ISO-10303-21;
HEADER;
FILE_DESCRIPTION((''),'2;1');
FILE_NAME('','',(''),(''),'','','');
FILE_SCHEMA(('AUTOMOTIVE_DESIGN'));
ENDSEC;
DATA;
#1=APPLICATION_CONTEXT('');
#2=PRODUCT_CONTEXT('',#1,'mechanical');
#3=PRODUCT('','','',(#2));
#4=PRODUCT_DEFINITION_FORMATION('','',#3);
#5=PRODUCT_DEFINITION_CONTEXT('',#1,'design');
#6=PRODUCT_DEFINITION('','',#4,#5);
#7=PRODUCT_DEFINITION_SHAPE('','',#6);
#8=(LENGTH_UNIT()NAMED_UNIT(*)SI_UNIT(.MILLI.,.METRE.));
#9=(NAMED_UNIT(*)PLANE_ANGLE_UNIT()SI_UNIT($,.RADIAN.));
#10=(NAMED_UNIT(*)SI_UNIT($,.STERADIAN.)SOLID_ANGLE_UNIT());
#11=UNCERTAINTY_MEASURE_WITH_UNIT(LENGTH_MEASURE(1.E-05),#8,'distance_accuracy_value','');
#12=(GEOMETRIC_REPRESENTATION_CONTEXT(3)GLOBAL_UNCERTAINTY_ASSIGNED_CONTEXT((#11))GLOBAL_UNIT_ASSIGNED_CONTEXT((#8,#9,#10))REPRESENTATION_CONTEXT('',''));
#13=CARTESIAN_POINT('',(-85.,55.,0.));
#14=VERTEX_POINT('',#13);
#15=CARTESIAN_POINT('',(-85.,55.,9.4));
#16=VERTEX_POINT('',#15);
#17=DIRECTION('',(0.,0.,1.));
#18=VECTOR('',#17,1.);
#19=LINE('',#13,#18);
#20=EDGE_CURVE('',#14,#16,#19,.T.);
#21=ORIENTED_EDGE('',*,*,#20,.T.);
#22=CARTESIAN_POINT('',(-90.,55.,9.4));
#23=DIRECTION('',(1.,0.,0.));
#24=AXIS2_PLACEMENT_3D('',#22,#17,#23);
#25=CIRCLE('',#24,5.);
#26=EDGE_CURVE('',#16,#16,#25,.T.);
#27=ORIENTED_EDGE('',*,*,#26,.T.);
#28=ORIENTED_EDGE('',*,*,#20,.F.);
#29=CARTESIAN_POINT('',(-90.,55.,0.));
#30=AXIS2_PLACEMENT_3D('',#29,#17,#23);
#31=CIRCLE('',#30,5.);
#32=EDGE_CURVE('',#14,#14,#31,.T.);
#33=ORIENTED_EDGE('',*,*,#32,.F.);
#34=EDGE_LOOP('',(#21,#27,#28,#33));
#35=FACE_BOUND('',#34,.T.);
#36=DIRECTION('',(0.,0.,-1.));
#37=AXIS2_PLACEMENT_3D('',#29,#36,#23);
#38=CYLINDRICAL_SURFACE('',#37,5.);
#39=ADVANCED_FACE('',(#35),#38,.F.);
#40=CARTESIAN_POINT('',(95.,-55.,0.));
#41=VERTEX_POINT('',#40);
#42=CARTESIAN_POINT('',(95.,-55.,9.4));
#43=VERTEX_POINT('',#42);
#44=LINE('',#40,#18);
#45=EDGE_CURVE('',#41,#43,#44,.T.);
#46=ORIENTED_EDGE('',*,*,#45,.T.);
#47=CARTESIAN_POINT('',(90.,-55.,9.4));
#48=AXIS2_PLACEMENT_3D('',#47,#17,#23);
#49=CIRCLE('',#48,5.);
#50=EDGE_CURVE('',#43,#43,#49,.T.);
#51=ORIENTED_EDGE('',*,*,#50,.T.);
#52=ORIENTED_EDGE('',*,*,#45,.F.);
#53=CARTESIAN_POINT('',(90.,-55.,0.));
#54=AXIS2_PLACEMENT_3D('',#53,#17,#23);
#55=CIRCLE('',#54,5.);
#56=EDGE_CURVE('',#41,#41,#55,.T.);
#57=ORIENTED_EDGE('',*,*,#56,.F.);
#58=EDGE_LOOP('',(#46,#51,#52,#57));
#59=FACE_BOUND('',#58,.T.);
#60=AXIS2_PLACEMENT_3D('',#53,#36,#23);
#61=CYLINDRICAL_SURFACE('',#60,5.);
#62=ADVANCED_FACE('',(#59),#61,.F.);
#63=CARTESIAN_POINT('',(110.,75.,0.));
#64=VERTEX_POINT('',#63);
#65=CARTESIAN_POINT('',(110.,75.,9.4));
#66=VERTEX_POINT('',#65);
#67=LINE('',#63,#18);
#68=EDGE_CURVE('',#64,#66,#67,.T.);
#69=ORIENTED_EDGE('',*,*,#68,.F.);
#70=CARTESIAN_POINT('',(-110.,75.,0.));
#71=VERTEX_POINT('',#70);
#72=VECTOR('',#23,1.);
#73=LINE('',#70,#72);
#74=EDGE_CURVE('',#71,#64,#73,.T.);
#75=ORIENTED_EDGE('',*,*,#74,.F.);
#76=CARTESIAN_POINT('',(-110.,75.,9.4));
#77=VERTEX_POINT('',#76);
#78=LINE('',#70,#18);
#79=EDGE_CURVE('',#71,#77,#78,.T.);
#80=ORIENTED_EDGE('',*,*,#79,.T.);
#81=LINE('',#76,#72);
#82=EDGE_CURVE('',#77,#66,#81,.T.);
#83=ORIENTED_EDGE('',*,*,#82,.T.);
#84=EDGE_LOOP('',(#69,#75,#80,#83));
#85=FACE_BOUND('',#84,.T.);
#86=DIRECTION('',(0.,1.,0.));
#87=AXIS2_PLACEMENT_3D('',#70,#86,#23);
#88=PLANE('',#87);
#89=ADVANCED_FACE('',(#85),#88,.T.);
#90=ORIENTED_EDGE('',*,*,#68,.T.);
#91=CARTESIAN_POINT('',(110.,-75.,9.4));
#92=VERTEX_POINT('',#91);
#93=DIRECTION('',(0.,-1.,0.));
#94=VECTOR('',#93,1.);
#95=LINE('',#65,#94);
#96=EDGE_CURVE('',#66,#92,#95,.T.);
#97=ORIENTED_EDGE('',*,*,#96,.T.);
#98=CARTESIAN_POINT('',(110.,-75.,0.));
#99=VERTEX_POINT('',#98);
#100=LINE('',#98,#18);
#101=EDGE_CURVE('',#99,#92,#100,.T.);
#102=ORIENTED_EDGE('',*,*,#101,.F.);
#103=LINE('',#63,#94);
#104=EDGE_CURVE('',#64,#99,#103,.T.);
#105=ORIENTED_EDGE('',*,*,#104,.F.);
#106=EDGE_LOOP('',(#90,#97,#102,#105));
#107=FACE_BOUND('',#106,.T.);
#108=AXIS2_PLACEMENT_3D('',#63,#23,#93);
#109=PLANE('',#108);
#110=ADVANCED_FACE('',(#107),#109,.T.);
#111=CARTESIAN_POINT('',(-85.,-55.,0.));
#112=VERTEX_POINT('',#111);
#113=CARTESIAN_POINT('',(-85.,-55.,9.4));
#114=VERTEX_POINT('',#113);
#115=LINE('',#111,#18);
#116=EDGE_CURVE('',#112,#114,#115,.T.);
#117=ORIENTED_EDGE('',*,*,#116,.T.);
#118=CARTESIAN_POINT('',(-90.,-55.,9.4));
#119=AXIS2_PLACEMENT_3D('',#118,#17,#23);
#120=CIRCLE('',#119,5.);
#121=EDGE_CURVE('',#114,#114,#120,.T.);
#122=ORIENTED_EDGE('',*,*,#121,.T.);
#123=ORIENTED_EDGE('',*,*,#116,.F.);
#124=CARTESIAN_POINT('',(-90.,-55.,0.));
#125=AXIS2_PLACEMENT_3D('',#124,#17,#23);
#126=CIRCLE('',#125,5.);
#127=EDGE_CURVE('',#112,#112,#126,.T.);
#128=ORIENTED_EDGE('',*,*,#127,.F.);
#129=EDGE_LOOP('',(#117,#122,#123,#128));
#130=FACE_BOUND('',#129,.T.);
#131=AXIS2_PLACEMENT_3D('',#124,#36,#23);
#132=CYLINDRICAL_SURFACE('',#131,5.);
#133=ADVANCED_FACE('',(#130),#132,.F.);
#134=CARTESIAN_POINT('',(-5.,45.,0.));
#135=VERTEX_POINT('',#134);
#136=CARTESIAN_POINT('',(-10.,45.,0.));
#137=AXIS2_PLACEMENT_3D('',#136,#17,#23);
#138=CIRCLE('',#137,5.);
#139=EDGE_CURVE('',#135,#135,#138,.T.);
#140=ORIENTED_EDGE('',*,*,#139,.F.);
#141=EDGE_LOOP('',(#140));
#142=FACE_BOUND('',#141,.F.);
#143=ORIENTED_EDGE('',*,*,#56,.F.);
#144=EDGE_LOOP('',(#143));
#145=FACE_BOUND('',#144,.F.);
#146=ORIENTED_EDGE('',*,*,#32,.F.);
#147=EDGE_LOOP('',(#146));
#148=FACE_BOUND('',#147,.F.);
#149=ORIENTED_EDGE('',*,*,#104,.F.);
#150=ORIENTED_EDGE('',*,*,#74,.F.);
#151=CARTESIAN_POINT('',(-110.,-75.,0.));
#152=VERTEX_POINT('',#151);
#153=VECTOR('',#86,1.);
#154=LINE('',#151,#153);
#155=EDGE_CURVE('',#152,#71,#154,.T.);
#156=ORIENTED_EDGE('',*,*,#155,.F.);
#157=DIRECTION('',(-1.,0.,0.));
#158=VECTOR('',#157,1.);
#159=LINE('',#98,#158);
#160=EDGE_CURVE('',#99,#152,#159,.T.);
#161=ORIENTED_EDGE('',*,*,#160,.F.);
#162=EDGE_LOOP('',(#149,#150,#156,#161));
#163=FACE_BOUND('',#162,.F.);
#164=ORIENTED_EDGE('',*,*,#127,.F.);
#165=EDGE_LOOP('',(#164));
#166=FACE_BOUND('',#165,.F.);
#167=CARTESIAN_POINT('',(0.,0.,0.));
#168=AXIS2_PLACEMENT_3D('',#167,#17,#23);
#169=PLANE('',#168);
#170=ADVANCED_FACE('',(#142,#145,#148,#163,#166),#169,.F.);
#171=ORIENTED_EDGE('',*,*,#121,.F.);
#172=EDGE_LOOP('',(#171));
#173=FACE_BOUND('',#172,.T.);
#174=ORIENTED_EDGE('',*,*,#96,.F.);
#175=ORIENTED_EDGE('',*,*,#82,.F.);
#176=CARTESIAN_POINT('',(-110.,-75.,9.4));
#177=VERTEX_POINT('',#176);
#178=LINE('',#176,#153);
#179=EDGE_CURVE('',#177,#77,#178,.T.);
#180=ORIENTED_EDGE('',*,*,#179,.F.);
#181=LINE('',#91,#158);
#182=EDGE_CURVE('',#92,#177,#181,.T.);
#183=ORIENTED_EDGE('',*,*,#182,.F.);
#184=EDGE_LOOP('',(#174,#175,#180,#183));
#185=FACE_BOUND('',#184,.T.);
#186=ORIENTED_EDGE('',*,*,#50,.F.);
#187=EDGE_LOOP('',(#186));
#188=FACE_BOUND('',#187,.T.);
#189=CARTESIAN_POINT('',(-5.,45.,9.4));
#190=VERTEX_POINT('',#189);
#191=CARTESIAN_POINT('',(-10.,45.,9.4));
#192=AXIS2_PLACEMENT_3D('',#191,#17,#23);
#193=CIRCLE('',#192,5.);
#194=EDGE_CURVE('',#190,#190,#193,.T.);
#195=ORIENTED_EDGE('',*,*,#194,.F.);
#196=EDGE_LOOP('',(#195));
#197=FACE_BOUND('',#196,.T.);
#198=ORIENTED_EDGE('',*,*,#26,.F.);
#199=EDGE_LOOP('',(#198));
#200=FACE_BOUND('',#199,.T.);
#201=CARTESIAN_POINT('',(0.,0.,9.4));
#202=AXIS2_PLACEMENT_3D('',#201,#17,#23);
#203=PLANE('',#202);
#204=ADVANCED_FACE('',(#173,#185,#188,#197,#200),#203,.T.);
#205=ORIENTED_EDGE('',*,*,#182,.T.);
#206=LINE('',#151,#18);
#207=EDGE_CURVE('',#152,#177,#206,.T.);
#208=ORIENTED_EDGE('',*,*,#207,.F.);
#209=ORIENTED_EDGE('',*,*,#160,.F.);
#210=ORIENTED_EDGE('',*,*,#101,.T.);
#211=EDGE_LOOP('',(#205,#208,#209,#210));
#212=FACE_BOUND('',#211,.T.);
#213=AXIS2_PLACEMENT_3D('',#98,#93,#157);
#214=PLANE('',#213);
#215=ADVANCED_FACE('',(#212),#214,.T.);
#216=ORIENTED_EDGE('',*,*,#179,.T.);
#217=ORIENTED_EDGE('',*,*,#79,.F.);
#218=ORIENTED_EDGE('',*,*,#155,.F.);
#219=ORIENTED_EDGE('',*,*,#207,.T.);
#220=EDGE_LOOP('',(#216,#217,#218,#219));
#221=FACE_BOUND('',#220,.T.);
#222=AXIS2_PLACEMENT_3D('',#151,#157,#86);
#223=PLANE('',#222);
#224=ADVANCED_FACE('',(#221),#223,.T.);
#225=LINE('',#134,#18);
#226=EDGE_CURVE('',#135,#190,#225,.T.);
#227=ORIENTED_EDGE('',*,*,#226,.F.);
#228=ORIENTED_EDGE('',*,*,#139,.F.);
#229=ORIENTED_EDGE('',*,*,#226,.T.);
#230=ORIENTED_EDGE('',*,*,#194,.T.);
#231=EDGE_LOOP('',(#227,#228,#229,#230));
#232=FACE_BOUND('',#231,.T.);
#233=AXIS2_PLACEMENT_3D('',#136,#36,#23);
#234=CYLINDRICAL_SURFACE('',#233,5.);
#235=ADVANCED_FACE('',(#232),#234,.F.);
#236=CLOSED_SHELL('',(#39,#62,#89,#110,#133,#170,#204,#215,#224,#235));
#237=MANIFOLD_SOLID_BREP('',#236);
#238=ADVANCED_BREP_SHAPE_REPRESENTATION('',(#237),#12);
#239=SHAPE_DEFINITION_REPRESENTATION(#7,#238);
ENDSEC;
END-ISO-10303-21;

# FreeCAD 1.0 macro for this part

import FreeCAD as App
import Part
import Sketcher
Q = App.Units.Quantity


def add_polygon(sketch, points):
    """Adds a closed chain of lines whose ends are joined by coincident constraints."""
    first, n = sketch.GeometryCount, len(points)
    for a, b in zip(points, points[1:] + points[:1]):
        sketch.addGeometry(Part.LineSegment(App.Vector(*a, 0), App.Vector(*b, 0)), False)
    for i in range(n):
        sketch.addConstraint(Sketcher.Constraint("Coincident", first + i, 2, first + (i + 1) % n, 1))

doc = App.newDocument("Part")
params = doc.addObject("Spreadsheet::Sheet", "Params")
for row, (alias, value) in enumerate([
    ("sketch1_diameter", "10 mm"),
    ("sketch1_width", "220 mm"),
    ("sketch1_height", "150 mm"),
    ("pad1_length", "9.4 mm"),
], start=1):
    params.set(f"A{row}", alias)
    params.set(f"B{row}", "=" + value)
    params.setAlias(f"B{row}", alias)

body = doc.addObject("PartDesign::Body", "Body")

# Sketch on XY plane
sketch1 = body.newObject("Sketcher::SketchObject", "Sketch")
sketch1.AttachmentSupport = (doc.getObject("XY_Plane"), [""])
sketch1.MapMode = "FlatFace"
add_polygon(sketch1, [(110, 75), (-110, 75), (-110, -75), (110, -75)])  # lines 0-3
sketch1.addGeometry(Part.Circle(App.Vector(-90, -55, 0), App.Vector(0, 0, 1), 5), False)  # 4
sketch1.addGeometry(Part.Circle(App.Vector(90, -55, 0), App.Vector(0, 0, 1), 5), False)  # 5
sketch1.addGeometry(Part.Circle(App.Vector(-90, 55, 0), App.Vector(0, 0, 1), 5), False)  # 6
sketch1.addGeometry(Part.Circle(App.Vector(-10, 45, 0), App.Vector(0, 0, 1), 5), False)  # 7
sketch1.addConstraint(Sketcher.Constraint("Horizontal", 0))
sketch1.addConstraint(Sketcher.Constraint("Vertical", 1))
sketch1.addConstraint(Sketcher.Constraint("Horizontal", 2))
sketch1.addConstraint(Sketcher.Constraint("Vertical", 3))
sketch1.addConstraint(Sketcher.Constraint("Equal", 4, 5))
sketch1.addConstraint(Sketcher.Constraint("Equal", 5, 6))
sketch1.addConstraint(Sketcher.Constraint("Equal", 6, 7))
sketch1.addConstraint(Sketcher.Constraint("Symmetric", 5, 3, 6, 3, -1, 1))
sketch1.addConstraint(Sketcher.Constraint("Symmetric", 0, 2, 2, 2, -1, 1))
sketch1.addConstraint(Sketcher.Constraint("Symmetric", 4, 3, 5, 3, -2))
sketch1.addConstraint(Sketcher.Constraint("Diameter", 4, Q("10 mm")))
sketch1.addConstraint(Sketcher.Constraint("DistanceX", 0, 2, 0, 1, Q("220 mm")))
sketch1.addConstraint(Sketcher.Constraint("DistanceY", 1, 2, 1, 1, Q("150 mm")))
sketch1.addConstraint(Sketcher.Constraint("DistanceX", 4, 3, -1, 1, Q("90 mm")))
sketch1.addConstraint(Sketcher.Constraint("DistanceY", 4, 3, -1, 1, Q("55 mm")))
sketch1.addConstraint(Sketcher.Constraint("DistanceX", 7, 3, -1, 1, Q("10 mm")))
sketch1.addConstraint(Sketcher.Constraint("DistanceY", -1, 1, 7, 3, Q("45 mm")))
sketch1.setExpression("Constraints[14]", "Params.sketch1_diameter")
sketch1.setExpression("Constraints[15]", "Params.sketch1_width")
sketch1.setExpression("Constraints[16]", "Params.sketch1_height")
pad1 = body.newObject("PartDesign::Pad", "Pad")
pad1.Profile = sketch1
pad1.setExpression("Length", "Params.pad1_length")

doc.recompute()
